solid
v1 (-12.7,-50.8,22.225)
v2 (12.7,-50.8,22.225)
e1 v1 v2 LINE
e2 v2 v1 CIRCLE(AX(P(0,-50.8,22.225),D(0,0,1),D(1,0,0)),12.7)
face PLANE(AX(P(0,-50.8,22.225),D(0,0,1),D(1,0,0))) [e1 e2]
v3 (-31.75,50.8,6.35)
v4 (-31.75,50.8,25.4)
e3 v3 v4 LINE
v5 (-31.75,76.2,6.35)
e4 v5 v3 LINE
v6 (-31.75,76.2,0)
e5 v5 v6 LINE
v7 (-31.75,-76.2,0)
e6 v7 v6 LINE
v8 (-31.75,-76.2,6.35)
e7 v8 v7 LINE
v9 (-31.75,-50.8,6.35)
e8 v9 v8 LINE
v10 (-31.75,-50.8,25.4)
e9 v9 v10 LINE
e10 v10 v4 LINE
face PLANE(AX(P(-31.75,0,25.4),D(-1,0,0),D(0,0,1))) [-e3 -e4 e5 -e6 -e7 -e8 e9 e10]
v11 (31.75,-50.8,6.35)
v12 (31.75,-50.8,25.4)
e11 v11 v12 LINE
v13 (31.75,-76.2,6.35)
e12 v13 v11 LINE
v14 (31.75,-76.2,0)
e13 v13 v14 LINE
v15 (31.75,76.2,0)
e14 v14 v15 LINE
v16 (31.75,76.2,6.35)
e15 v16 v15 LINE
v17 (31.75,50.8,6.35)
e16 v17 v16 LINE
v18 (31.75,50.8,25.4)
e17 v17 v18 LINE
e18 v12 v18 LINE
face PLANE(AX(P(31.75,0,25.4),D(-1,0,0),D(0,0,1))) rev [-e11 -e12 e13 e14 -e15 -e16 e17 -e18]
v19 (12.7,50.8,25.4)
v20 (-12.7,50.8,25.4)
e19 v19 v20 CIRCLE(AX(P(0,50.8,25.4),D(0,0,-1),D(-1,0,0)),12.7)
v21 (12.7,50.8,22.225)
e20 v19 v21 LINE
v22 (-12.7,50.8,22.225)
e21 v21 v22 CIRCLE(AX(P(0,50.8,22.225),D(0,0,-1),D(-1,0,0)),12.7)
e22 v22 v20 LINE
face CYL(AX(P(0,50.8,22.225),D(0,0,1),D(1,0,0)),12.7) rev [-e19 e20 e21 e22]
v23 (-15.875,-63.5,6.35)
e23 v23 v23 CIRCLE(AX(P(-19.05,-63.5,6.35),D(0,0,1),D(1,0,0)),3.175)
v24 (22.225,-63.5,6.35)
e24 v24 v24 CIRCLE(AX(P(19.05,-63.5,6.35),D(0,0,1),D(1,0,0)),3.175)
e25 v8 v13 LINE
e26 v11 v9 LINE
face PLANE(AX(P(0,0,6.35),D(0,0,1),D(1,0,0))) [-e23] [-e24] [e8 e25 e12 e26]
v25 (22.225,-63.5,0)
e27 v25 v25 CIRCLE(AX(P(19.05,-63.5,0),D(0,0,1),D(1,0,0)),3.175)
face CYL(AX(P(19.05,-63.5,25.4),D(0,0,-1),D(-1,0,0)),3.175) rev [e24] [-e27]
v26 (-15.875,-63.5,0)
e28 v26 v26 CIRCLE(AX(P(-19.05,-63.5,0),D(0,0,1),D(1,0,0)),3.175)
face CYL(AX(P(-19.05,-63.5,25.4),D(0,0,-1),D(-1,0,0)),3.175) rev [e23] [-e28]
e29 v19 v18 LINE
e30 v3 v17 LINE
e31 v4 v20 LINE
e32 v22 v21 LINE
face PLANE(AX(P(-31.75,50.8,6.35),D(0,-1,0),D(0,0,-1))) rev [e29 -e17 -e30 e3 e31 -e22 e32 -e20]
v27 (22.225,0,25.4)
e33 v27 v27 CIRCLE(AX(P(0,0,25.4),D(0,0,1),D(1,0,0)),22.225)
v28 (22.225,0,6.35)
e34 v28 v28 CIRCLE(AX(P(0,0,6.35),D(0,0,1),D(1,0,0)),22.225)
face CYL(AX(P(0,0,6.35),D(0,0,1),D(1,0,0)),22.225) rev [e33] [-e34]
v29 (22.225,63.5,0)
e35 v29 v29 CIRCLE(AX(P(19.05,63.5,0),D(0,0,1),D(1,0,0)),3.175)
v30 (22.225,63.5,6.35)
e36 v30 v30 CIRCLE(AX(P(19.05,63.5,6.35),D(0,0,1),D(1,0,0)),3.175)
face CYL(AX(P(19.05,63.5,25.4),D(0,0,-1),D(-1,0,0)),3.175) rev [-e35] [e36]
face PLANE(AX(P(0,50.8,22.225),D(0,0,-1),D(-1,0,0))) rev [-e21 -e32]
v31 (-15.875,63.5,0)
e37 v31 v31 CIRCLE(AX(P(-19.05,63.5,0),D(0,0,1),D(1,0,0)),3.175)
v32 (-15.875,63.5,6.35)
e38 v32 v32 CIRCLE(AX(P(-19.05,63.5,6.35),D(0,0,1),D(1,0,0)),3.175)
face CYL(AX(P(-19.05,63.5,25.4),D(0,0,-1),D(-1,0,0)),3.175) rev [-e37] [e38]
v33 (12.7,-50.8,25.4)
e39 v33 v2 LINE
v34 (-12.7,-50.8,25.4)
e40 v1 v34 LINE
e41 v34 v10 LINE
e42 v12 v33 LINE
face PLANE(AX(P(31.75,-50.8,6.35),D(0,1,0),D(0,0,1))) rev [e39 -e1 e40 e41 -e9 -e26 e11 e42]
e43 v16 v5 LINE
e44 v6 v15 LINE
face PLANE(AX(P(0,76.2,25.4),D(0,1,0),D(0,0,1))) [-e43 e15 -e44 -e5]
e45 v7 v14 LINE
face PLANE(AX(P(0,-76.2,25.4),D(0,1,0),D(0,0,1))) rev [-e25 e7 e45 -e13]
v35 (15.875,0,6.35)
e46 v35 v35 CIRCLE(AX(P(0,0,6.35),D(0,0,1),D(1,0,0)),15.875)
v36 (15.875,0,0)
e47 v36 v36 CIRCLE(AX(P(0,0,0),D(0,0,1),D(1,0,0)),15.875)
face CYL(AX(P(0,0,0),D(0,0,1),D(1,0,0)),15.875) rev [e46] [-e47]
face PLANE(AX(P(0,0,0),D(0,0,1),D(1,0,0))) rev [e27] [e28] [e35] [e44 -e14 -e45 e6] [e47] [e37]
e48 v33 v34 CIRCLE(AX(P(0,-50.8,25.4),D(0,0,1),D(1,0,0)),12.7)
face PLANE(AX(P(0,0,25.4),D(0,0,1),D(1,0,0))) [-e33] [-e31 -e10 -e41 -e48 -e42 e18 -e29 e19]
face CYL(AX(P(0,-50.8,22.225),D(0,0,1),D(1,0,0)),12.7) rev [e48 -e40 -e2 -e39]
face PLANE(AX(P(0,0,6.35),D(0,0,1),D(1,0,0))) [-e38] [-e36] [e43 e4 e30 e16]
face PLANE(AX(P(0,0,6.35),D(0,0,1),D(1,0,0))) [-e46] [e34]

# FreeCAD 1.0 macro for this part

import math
import FreeCAD as App
import Part
import Sketcher
Q = App.Units.Quantity


def add_polygon(sketch, points):
    """Adds a closed chain of lines whose ends are joined by coincident constraints."""
    first, n = sketch.GeometryCount, len(points)
    for a, b in zip(points, points[1:] + points[:1]):
        sketch.addGeometry(Part.LineSegment(App.Vector(*a, 0), App.Vector(*b, 0)), False)
    for i in range(n):
        sketch.addConstraint(Sketcher.Constraint("Coincident", first + i, 2, first + (i + 1) % n, 1))

doc = App.newDocument("Part")
body = doc.addObject("PartDesign::Body", "Body")

sketch1 = body.newObject("Sketcher::SketchObject", "Sketch")
sketch1.AttachmentSupport = (doc.getObject("XY_Plane"), [""])
sketch1.MapMode = "FlatFace"
add_polygon(sketch1, [(31.8, 76.2), (-31.8, 76.2), (-31.8, -76.2), (31.8, -76.2)])
sketch1.addGeometry(Part.ArcOfCircle(Part.Circle(App.Vector(19.1, -63.5, 0), App.Vector(0, 0, 1), 3.2), math.radians(0), math.radians(270)), False)
sketch1.addGeometry(Part.ArcOfCircle(Part.Circle(App.Vector(19, -63.5, 0), App.Vector(0, 0, 1), 3.2), math.radians(-90), math.radians(0)), False)
sketch1.addGeometry(Part.ArcOfCircle(Part.Circle(App.Vector(-19.1, -63.5, 0), App.Vector(0, 0, 1), 3.2), math.radians(0), math.radians(180)), False)
sketch1.addGeometry(Part.ArcOfCircle(Part.Circle(App.Vector(-19.1, -63.5, 0), App.Vector(0, 0, 1), 3.2), math.radians(-90), math.radians(0)), False)
sketch1.addGeometry(Part.ArcOfCircle(Part.Circle(App.Vector(-19, -63.5, 0), App.Vector(0, 0, 1), 3.2), math.radians(-180), math.radians(-90)), False)
sketch1.addGeometry(Part.ArcOfCircle(Part.Circle(App.Vector(19.1, 63.5, 0), App.Vector(0, 0, 1), 3.2), math.radians(90), math.radians(360)), False)
sketch1.addGeometry(Part.ArcOfCircle(Part.Circle(App.Vector(19, 63.5, 0), App.Vector(0, 0, 1), 3.2), math.radians(0), math.radians(90)), False)
sketch1.addGeometry(Part.ArcOfCircle(Part.Circle(App.Vector(-19.1, 63.5, 0), App.Vector(0, 0, 1), 3.2), math.radians(0), math.radians(90)), False)
sketch1.addGeometry(Part.ArcOfCircle(Part.Circle(App.Vector(-19.1, 63.5, 0), App.Vector(0, 0, 1), 3.2), math.radians(180), math.radians(360)), False)
sketch1.addGeometry(Part.ArcOfCircle(Part.Circle(App.Vector(-19, 63.5, 0), App.Vector(0, 0, 1), 3.2), math.radians(90), math.radians(180)), False)
sketch1.addConstraint(Sketcher.Constraint("Tangent", 4, 1, 5, 2))
sketch1.addConstraint(Sketcher.Constraint("Coincident", 5, 1, 4, 2))
sketch1.addConstraint(Sketcher.Constraint("Tangent", 6, 1, 7, 2))
sketch1.addConstraint(Sketcher.Constraint("Tangent", 7, 1, 8, 2))
sketch1.addConstraint(Sketcher.Constraint("Tangent", 8, 1, 6, 2))
sketch1.addConstraint(Sketcher.Constraint("Tangent", 9, 1, 10, 2))
sketch1.addConstraint(Sketcher.Constraint("Coincident", 10, 1, 9, 2))
sketch1.addConstraint(Sketcher.Constraint("Tangent", 11, 1, 12, 2))
sketch1.addConstraint(Sketcher.Constraint("Tangent", 12, 1, 13, 2))
sketch1.addConstraint(Sketcher.Constraint("Tangent", 13, 1, 11, 2))
sketch1.addConstraint(Sketcher.Constraint("Horizontal", 0))
sketch1.addConstraint(Sketcher.Constraint("Vertical", 1))
sketch1.addConstraint(Sketcher.Constraint("Horizontal", 2))
sketch1.addConstraint(Sketcher.Constraint("Vertical", 3))
sketch1.addConstraint(Sketcher.Constraint("Equal", 5, 6))
sketch1.addConstraint(Sketcher.Constraint("Equal", 8, 9))
sketch1.addConstraint(Sketcher.Constraint("Equal", 10, 11))
sketch1.addConstraint(Sketcher.Constraint("Symmetric", 6, 3, 9, 3, -1, 1))
sketch1.addConstraint(Sketcher.Constraint("Symmetric", 4, 3, 11, 3, -1, 1))
sketch1.addConstraint(Sketcher.Constraint("Symmetric", 0, 2, 2, 2, -1, 1))
sketch1.addConstraint(Sketcher.Constraint("Symmetric", 4, 3, 6, 3, -2))
sketch1.addConstraint(Sketcher.Constraint("Horizontal", 8, 3, 4, 1))
sketch1.addConstraint(Sketcher.Constraint("Horizontal", 4, 1, 6, 1))
sketch1.addConstraint(Sketcher.Constraint("Horizontal", 6, 1, 8, 1))
sketch1.addConstraint(Sketcher.Constraint("Horizontal", 13, 3, 10, 1))
sketch1.addConstraint(Sketcher.Constraint("Horizontal", 10, 1, 11, 1))
sketch1.addConstraint(Sketcher.Constraint("Horizontal", 11, 1, 12, 1))
sketch1.addConstraint(Sketcher.Constraint("Vertical", 10, 3, 5, 1))
sketch1.addConstraint(Sketcher.Constraint("Vertical", 13, 3, 7, 1))
sketch1.addConstraint(Sketcher.Constraint("Vertical", 5, 1, 9, 1))
sketch1.addConstraint(Sketcher.Constraint("Vertical", 7, 1, 13, 1))
sketch1.addConstraint(Sketcher.Constraint("DistanceY", 1, 2, 1, 1, Q("6 in")))
sketch1.addConstraint(Sketcher.Constraint("DistanceX", 0, 2, 0, 1, Q("2.5 in")))
sketch1.addConstraint(Sketcher.Constraint("Radius", 4, Q("0.125 in")))
sketch1.addConstraint(Sketcher.Constraint("DistanceY", 5, 3, 9, 3, Q("5 in")))
sketch1.addConstraint(Sketcher.Constraint("DistanceX", 0, 2, 10, 3, Q("2 in")))
pad1 = body.newObject("PartDesign::Pad", "Pad")
pad1.Profile = sketch1
pad1.Length = Q("1 in")

sketch2 = body.newObject("Sketcher::SketchObject", "Sketch001")
sketch2.AttachmentSupport = (doc.getObject("XY_Plane"), [""])
sketch2.MapMode = "FlatFace"
sketch2.AttachmentOffset = App.Placement(App.Vector(0, 0, 1 * 25.4), App.Rotation())
add_polygon(sketch2, [(-32, 76), (-32, 51), (32, 51), (32, 76)])
add_polygon(sketch2, [(-32, -51), (-32, -76), (32, -76), (32, -51)])
sketch2.addConstraint(Sketcher.Constraint("Vertical", 0))
sketch2.addConstraint(Sketcher.Constraint("Horizontal", 1))
sketch2.addConstraint(Sketcher.Constraint("Vertical", 2))
sketch2.addConstraint(Sketcher.Constraint("Horizontal", 3))
sketch2.addConstraint(Sketcher.Constraint("Vertical", 4))
sketch2.addConstraint(Sketcher.Constraint("Horizontal", 5))
sketch2.addConstraint(Sketcher.Constraint("Vertical", 6))
sketch2.addConstraint(Sketcher.Constraint("Horizontal", 7))
sketch2.addConstraint(Sketcher.Constraint("Symmetric", 2, 2, 4, 2, -1, 1))
sketch2.addConstraint(Sketcher.Constraint("Symmetric", 0, 2, 6, 2, -1, 1))
sketch2.addConstraint(Sketcher.Constraint("Vertical", 3, 2, 4, 2))
sketch2.addConstraint(Sketcher.Constraint("DistanceY", 0, 2, 0, 1, Q("1 in")))
sketch2.addConstraint(Sketcher.Constraint("DistanceX", 1, 1, 1, 2, Q("2.5 in")))
sketch2.addConstraint(Sketcher.Constraint("DistanceY", -1, 1, 0, 2, Q("2 in")))
pocket1 = body.newObject("PartDesign::Pocket", "Pocket")
pocket1.Profile = sketch2
pocket1.Length = Q("0.75 in")

sketch3 = body.newObject("Sketcher::SketchObject", "Sketch002")
sketch3.AttachmentSupport = (doc.getObject("XY_Plane"), [""])
sketch3.MapMode = "FlatFace"
sketch3.AttachmentOffset = App.Placement(App.Vector(0, 0, 1 * 25.4), App.Rotation())
sketch3.addGeometry(Part.Circle(App.Vector(0, 0, 0), App.Vector(0, 0, 1), 16), False)
sketch3.addConstraint(Sketcher.Constraint("Coincident", 0, 3, -1, 1))
sketch3.addConstraint(Sketcher.Constraint("Diameter", 0, Q("1.25 in")))
pocket2 = body.newObject("PartDesign::Pocket", "Pocket001")
pocket2.Profile = sketch3
pocket2.Type = "ThroughAll"

sketch4 = body.newObject("Sketcher::SketchObject", "Sketch003")
sketch4.AttachmentSupport = (doc.getObject("XY_Plane"), [""])
sketch4.MapMode = "FlatFace"
sketch4.AttachmentOffset = App.Placement(App.Vector(0, 0, 1 * 25.4), App.Rotation())
sketch4.addGeometry(Part.Circle(App.Vector(0, 0, 0), App.Vector(0, 0, 1), 22), False)
sketch4.addGeometry(Part.Circle(App.Vector(0, 0, 0), App.Vector(0, 0, 1), 16), False)
sketch4.addConstraint(Sketcher.Constraint("Coincident", 0, 3, -1, 1))
sketch4.addConstraint(Sketcher.Constraint("Coincident", 1, 3, -1, 1))
sketch4.addConstraint(Sketcher.Constraint("Diameter", 0, Q("1.75 in")))
sketch4.addConstraint(Sketcher.Constraint("Diameter", 1, Q("1.25 in")))
pocket3 = body.newObject("PartDesign::Pocket", "Pocket002")
pocket3.Profile = sketch4
pocket3.Length = Q("0.75 in")

sketch5 = body.newObject("Sketcher::SketchObject", "Sketch004")
sketch5.AttachmentSupport = (doc.getObject("XY_Plane"), [""])
sketch5.MapMode = "FlatFace"
sketch5.AttachmentOffset = App.Placement(App.Vector(0, 0, 1 * 25.4), App.Rotation())
sketch5.addGeometry(Part.Circle(App.Vector(0, -51, 0), App.Vector(0, 0, 1), 13), False)
sketch5.addGeometry(Part.Circle(App.Vector(0, 51, 0), App.Vector(0, 0, 1), 13), False)
sketch5.addConstraint(Sketcher.Constraint("Equal", 0, 1))
sketch5.addConstraint(Sketcher.Constraint("Symmetric", 0, 3, 1, 3, -1, 1))
sketch5.addConstraint(Sketcher.Constraint("PointOnObject", 0, 3, -2))
sketch5.addConstraint(Sketcher.Constraint("Diameter", 0, Q("1 in")))
sketch5.addConstraint(Sketcher.Constraint("DistanceY", 0, 3, -1, 1, Q("2 in")))
pocket4 = body.newObject("PartDesign::Pocket", "Pocket003")
pocket4.Profile = sketch5
pocket4.Length = Q("0.125 in")
body2 = doc.addObject("PartDesign::Body", "Body001")

sketch6 = body2.newObject("Sketcher::SketchObject", "Sketch005")
sketch6.AttachmentSupport = (doc.getObject("YZ_Plane001"), [""])
sketch6.MapMode = "FlatFace"
sketch6.AttachmentOffset = App.Placement(App.Vector(0, 0, -1.25 * 25.4), App.Rotation())
add_polygon(sketch6, [(123, 19), (123, 0), (-76, 0), (-76, 6), (-51, 6), (-51, 19)])
sketch6.addConstraint(Sketcher.Constraint("Vertical", 0))
sketch6.addConstraint(Sketcher.Constraint("Horizontal", 1))
sketch6.addConstraint(Sketcher.Constraint("Vertical", 2))
sketch6.addConstraint(Sketcher.Constraint("Horizontal", 3))
sketch6.addConstraint(Sketcher.Constraint("Vertical", 4))
sketch6.addConstraint(Sketcher.Constraint("Horizontal", 5))
sketch6.addConstraint(Sketcher.Constraint("PointOnObject", 0, 2, -1))
sketch6.addConstraint(Sketcher.Constraint("DistanceX", 3, 1, 3, 2, Q("1 in")))
sketch6.addConstraint(Sketcher.Constraint("DistanceY", 4, 1, 4, 2, Q("0.5 in")))
sketch6.addConstraint(Sketcher.Constraint("DistanceX", 1, 2, -1, 1, Q("3 in")))
sketch6.addConstraint(Sketcher.Constraint("DistanceX", 1, 2, 1, 1, Q("7.85 in")))
sketch6.addConstraint(Sketcher.Constraint("DistanceY", 0, 2, 0, 1, Q("0.75 in")))
pad2 = body2.newObject("PartDesign::Pad", "Pad001")
pad2.Profile = sketch6
pad2.Length = Q("1 in")
pad2.Reversed = True

sketch7 = body2.newObject("Sketcher::SketchObject", "Sketch006")
sketch7.AttachmentSupport = (doc.getObject("YZ_Plane001"), [""])
sketch7.MapMode = "FlatFace"
sketch7.AttachmentOffset = App.Placement(App.Vector(0, 0, -2.25 * 25.4), App.Rotation())
add_polygon(sketch7, [(123.2, 0), (119.6, 0), (119.6, 19.1), (123.2, 19.1)])
add_polygon(sketch7, [(112, 0), (108.5, 0), (108.5, 19.1), (112, 19.1)])
sketch7.addConstraint(Sketcher.Constraint("Horizontal", 0))
sketch7.addConstraint(Sketcher.Constraint("Vertical", 1))
sketch7.addConstraint(Sketcher.Constraint("Horizontal", 2))
sketch7.addConstraint(Sketcher.Constraint("Vertical", 3))
sketch7.addConstraint(Sketcher.Constraint("Horizontal", 4))
sketch7.addConstraint(Sketcher.Constraint("Vertical", 5))
sketch7.addConstraint(Sketcher.Constraint("Horizontal", 6))
sketch7.addConstraint(Sketcher.Constraint("Vertical", 7))
sketch7.addConstraint(Sketcher.Constraint("PointOnObject", 0, 2, -1))
sketch7.addConstraint(Sketcher.Constraint("PointOnObject", 4, 2, -1))
sketch7.addConstraint(Sketcher.Constraint("Horizontal", 2, 2, 5, 2))
sketch7.addConstraint(Sketcher.Constraint("Equal", 2, 4))
sketch7.addConstraint(Sketcher.Constraint("DistanceX", 0, 2, 0, 1, Q("0.14 in")))
sketch7.addConstraint(Sketcher.Constraint("DistanceY", 1, 1, 1, 2, Q("0.75 in")))
sketch7.addConstraint(Sketcher.Constraint("DistanceX", 6, 2, 1, 2, Q("0.3 in")))
sketch7.addConstraint(Sketcher.Constraint("DistanceX", -1, 1, 0, 2, Q("4.71 in")))
pad3 = body2.newObject("PartDesign::Pad", "Pad002")
pad3.Profile = sketch7
pad3.Length = Q("1.4 in")
pad3.Reversed = True
body2.Visibility = False

doc.recompute()
